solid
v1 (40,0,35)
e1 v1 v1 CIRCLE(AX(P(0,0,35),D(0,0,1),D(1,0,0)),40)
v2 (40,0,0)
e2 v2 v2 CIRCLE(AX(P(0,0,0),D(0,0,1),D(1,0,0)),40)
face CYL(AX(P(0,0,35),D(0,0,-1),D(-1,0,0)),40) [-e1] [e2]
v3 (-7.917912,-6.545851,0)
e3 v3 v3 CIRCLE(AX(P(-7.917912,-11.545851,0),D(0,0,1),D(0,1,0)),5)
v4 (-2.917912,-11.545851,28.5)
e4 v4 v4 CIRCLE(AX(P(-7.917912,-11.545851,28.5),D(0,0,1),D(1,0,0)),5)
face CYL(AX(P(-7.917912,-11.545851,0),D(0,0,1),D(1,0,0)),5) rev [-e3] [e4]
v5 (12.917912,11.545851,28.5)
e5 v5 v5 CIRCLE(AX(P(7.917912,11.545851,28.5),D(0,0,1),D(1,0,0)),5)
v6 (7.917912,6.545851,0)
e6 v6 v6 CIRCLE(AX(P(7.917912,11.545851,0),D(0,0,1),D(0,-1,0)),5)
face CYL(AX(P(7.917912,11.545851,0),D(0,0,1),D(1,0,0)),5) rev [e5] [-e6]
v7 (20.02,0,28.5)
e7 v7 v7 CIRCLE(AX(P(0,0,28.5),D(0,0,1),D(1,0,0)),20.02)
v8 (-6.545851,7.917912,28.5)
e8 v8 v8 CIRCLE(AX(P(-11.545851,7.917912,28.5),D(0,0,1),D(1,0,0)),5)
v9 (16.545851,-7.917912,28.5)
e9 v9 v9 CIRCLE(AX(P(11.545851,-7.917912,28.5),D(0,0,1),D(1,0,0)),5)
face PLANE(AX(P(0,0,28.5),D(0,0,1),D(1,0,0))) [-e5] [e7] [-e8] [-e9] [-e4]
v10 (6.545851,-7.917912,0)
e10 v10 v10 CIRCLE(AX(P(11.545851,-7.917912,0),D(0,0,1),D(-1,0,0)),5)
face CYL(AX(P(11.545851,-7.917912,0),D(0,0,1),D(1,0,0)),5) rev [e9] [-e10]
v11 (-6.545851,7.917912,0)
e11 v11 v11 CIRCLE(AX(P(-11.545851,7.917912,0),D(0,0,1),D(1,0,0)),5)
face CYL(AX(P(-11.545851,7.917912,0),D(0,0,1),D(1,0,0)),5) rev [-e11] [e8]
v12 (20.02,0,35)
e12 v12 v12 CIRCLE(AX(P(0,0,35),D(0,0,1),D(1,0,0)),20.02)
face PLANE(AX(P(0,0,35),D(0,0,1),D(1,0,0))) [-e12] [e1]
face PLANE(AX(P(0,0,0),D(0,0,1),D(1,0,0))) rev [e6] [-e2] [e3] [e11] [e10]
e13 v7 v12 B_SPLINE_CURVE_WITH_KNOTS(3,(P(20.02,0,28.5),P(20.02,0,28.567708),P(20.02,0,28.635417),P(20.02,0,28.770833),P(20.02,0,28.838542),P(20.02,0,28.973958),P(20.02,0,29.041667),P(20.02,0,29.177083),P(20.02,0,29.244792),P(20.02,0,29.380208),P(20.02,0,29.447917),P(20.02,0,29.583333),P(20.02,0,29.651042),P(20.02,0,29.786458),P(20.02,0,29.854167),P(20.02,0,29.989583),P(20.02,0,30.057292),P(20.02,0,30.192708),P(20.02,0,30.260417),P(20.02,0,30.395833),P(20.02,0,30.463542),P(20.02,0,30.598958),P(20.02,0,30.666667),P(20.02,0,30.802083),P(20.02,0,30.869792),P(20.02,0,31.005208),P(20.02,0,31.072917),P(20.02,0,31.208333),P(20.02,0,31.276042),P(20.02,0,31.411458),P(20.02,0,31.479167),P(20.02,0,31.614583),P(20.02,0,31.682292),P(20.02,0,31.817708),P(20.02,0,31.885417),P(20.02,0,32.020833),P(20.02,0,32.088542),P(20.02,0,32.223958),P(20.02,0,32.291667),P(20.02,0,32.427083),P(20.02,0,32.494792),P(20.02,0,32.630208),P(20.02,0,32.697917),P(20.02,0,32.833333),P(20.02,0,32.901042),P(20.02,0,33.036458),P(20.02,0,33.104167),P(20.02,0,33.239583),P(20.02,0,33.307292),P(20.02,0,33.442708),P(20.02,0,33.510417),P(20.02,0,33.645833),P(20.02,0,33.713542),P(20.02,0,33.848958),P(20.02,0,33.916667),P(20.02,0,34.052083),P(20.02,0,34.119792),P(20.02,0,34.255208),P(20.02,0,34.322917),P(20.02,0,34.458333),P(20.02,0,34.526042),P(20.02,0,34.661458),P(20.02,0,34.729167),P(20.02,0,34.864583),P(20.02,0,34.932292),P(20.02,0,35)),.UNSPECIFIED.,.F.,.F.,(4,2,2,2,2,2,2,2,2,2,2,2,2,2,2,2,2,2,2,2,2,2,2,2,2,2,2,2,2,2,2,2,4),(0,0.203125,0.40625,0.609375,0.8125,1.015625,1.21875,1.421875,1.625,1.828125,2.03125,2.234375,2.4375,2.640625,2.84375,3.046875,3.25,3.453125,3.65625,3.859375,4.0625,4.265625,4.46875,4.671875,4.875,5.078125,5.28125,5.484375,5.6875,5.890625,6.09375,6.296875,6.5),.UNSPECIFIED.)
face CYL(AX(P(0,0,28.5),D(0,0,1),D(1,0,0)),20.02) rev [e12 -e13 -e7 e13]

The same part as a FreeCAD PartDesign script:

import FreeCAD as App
import Part
import Sketcher
from FreeCAD import Vector

doc = App.newDocument("Part")
body = doc.addObject("PartDesign::Body", "Body")

# Sketch on XY plane
sketch1 = doc.addObject("Sketcher::SketchObject", "Sketch")
body.addObject(sketch1)
sketch1.AttachmentSupport = (doc.XY_Plane, [""])
sketch1.MapMode = "FlatFace"
sketch1.addGeometry(Part.Circle(Vector(0, 0, 0), Vector(0, 0, 1), 40), False)
sketch1.addConstraint([
    Sketcher.Constraint("Coincident", 0, 3, -1, 1),
    Sketcher.Constraint("Diameter", 0, 80.0),
])
pad1 = doc.addObject("PartDesign::Pad", "Pad")
body.addObject(pad1)
pad1.Profile = sketch1
pad1.Length = 35

# Sketch on XY plane
sketch2 = doc.addObject("Sketcher::SketchObject", "Sketch001")
body.addObject(sketch2)
sketch2.AttachmentSupport = (doc.XY_Plane, [""])
sketch2.MapMode = "FlatFace"
sketch2.AttachmentOffset = App.Placement(Vector(0, 0, 35), App.Rotation())
sketch2.addGeometry(Part.Circle(Vector(0, 0, 0), Vector(0, 0, 1), 20), False)
sketch2.addConstraint([
    Sketcher.Constraint("Coincident", 0, 3, -1, 1),
    Sketcher.Constraint("Diameter", 0, 40.04),
])
pocket1 = doc.addObject("PartDesign::Pocket", "Pocket")
body.addObject(pocket1)
pocket1.Profile = sketch2
pocket1.Length = 6.5

# Sketch on XY plane
sketch3 = doc.addObject("Sketcher::SketchObject", "Sketch002")
body.addObject(sketch3)
sketch3.AttachmentSupport = (doc.XY_Plane, [""])
sketch3.MapMode = "FlatFace"
sketch3.AttachmentOffset = App.Placement(Vector(0, 0, 35), App.Rotation())
sketch3.addGeometry(Part.Circle(Vector(-12, 8, 0), Vector(0, 0, 1), 5), False)
sketch3.addConstraint([
    Sketcher.Constraint("Diameter", 0, 10.0),
    Sketcher.Constraint("DistanceX", 0, 3, -1, 1, 11.545851),
    Sketcher.Constraint("DistanceY", -1, 1, 0, 3, 7.917912),
])
pocket2 = doc.addObject("PartDesign::Pocket", "Pocket001")
body.addObject(pocket2)
pocket2.Profile = sketch3
pocket2.Type = "ThroughAll"
doc.recompute()

polarpattern = doc.addObject("PartDesign::PolarPattern", "PolarPattern")
body.addObject(polarpattern)
polarpattern.Originals = [pocket2]
polarpattern.Axis = (doc.Z_Axis, [""])
polarpattern.Angle = 360
polarpattern.Occurrences = 4
body.Tip = polarpattern

doc.recompute()
